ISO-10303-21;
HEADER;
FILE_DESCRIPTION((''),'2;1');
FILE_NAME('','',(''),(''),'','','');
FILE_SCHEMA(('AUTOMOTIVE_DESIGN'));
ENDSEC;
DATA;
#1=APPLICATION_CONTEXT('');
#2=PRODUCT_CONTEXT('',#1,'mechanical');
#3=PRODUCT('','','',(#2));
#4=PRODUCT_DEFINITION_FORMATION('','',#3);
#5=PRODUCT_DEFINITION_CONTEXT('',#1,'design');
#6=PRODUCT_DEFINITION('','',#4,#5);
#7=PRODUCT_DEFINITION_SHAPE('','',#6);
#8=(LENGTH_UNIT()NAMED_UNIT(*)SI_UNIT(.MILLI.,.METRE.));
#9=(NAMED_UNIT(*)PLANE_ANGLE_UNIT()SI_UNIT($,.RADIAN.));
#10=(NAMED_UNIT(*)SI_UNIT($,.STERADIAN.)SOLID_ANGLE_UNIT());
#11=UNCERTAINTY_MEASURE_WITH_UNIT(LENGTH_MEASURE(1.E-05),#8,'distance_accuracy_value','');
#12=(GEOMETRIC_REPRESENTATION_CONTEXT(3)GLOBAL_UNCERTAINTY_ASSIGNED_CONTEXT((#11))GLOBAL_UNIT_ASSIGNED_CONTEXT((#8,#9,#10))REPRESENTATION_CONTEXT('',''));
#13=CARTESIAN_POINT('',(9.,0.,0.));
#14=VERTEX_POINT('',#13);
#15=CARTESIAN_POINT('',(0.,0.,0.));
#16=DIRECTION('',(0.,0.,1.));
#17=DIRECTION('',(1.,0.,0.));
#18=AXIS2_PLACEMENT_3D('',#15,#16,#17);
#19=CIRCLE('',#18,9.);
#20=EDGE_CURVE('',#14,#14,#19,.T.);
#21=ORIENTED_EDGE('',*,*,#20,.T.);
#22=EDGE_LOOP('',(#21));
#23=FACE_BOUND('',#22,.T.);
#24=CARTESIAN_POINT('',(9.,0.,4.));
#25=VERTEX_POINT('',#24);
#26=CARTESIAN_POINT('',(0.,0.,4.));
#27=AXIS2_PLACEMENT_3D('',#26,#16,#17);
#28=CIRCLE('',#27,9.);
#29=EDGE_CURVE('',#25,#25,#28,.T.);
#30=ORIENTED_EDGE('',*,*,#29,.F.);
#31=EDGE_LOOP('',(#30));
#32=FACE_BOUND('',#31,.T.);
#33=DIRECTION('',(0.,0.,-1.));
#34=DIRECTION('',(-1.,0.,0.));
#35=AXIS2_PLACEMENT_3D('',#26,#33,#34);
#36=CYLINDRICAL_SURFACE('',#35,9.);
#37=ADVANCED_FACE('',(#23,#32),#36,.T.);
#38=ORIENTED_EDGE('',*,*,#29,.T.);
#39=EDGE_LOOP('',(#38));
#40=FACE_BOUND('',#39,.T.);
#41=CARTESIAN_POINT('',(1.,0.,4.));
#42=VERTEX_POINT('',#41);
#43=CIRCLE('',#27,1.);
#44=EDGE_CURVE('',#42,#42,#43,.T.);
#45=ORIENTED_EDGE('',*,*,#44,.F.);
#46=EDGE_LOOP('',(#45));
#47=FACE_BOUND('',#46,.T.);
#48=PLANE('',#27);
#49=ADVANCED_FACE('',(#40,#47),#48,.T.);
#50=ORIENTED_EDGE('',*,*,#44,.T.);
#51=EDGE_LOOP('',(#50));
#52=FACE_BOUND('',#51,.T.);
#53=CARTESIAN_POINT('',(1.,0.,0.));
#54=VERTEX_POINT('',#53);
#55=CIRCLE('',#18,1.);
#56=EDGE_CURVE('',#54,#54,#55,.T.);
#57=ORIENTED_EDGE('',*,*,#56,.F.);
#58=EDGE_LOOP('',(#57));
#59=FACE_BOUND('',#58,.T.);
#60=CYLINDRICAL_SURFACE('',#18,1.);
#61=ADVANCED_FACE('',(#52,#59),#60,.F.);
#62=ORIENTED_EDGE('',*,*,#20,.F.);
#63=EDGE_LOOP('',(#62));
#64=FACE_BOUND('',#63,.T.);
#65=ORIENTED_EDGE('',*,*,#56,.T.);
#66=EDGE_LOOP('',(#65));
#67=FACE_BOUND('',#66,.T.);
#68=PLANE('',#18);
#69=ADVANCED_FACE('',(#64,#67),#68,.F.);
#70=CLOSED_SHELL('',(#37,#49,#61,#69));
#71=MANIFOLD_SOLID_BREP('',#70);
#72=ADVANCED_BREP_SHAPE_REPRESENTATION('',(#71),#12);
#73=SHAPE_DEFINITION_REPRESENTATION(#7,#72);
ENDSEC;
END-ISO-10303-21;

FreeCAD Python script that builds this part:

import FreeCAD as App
import Part
import Sketcher
from FreeCAD import Vector

doc = App.newDocument("Part")
body = doc.addObject("PartDesign::Body", "Body")

sketch1 = body.newObject("Sketcher::SketchObject", "Sketch")
sketch1.AttachmentSupport = (doc.getObject("XY_Plane"), [""])
sketch1.MapMode = "FlatFace"
sketch1.addGeometry(Part.Circle(Vector(0, 0, 0), Vector(0, 0, 1), 9), False)
sketch1.addConstraint([
    Sketcher.Constraint("Coincident", 0, 3, -1, 1),
    Sketcher.Constraint("Diameter", 0, 18.0),
])
pad1 = body.newObject("PartDesign::Pad", "Pad")
pad1.Profile = sketch1
pad1.Length = 4

sketch2 = body.newObject("Sketcher::SketchObject", "Sketch001")
sketch2.AttachmentSupport = (doc.getObject("XY_Plane"), [""])
sketch2.MapMode = "FlatFace"
sketch2.AttachmentOffset = App.Placement(Vector(0, 0, 4), App.Rotation())
sketch2.addGeometry(Part.Circle(Vector(0, 0, 0), Vector(0, 0, 1), 1), False)
sketch2.addConstraint([
    Sketcher.Constraint("Coincident", 0, 3, -1, 1),
    Sketcher.Constraint("Diameter", 0, 2.0),
])
pocket1 = body.newObject("PartDesign::Pocket", "Pocket")
pocket1.Profile = sketch2
pocket1.Type = "ThroughAll"

doc.recompute()
